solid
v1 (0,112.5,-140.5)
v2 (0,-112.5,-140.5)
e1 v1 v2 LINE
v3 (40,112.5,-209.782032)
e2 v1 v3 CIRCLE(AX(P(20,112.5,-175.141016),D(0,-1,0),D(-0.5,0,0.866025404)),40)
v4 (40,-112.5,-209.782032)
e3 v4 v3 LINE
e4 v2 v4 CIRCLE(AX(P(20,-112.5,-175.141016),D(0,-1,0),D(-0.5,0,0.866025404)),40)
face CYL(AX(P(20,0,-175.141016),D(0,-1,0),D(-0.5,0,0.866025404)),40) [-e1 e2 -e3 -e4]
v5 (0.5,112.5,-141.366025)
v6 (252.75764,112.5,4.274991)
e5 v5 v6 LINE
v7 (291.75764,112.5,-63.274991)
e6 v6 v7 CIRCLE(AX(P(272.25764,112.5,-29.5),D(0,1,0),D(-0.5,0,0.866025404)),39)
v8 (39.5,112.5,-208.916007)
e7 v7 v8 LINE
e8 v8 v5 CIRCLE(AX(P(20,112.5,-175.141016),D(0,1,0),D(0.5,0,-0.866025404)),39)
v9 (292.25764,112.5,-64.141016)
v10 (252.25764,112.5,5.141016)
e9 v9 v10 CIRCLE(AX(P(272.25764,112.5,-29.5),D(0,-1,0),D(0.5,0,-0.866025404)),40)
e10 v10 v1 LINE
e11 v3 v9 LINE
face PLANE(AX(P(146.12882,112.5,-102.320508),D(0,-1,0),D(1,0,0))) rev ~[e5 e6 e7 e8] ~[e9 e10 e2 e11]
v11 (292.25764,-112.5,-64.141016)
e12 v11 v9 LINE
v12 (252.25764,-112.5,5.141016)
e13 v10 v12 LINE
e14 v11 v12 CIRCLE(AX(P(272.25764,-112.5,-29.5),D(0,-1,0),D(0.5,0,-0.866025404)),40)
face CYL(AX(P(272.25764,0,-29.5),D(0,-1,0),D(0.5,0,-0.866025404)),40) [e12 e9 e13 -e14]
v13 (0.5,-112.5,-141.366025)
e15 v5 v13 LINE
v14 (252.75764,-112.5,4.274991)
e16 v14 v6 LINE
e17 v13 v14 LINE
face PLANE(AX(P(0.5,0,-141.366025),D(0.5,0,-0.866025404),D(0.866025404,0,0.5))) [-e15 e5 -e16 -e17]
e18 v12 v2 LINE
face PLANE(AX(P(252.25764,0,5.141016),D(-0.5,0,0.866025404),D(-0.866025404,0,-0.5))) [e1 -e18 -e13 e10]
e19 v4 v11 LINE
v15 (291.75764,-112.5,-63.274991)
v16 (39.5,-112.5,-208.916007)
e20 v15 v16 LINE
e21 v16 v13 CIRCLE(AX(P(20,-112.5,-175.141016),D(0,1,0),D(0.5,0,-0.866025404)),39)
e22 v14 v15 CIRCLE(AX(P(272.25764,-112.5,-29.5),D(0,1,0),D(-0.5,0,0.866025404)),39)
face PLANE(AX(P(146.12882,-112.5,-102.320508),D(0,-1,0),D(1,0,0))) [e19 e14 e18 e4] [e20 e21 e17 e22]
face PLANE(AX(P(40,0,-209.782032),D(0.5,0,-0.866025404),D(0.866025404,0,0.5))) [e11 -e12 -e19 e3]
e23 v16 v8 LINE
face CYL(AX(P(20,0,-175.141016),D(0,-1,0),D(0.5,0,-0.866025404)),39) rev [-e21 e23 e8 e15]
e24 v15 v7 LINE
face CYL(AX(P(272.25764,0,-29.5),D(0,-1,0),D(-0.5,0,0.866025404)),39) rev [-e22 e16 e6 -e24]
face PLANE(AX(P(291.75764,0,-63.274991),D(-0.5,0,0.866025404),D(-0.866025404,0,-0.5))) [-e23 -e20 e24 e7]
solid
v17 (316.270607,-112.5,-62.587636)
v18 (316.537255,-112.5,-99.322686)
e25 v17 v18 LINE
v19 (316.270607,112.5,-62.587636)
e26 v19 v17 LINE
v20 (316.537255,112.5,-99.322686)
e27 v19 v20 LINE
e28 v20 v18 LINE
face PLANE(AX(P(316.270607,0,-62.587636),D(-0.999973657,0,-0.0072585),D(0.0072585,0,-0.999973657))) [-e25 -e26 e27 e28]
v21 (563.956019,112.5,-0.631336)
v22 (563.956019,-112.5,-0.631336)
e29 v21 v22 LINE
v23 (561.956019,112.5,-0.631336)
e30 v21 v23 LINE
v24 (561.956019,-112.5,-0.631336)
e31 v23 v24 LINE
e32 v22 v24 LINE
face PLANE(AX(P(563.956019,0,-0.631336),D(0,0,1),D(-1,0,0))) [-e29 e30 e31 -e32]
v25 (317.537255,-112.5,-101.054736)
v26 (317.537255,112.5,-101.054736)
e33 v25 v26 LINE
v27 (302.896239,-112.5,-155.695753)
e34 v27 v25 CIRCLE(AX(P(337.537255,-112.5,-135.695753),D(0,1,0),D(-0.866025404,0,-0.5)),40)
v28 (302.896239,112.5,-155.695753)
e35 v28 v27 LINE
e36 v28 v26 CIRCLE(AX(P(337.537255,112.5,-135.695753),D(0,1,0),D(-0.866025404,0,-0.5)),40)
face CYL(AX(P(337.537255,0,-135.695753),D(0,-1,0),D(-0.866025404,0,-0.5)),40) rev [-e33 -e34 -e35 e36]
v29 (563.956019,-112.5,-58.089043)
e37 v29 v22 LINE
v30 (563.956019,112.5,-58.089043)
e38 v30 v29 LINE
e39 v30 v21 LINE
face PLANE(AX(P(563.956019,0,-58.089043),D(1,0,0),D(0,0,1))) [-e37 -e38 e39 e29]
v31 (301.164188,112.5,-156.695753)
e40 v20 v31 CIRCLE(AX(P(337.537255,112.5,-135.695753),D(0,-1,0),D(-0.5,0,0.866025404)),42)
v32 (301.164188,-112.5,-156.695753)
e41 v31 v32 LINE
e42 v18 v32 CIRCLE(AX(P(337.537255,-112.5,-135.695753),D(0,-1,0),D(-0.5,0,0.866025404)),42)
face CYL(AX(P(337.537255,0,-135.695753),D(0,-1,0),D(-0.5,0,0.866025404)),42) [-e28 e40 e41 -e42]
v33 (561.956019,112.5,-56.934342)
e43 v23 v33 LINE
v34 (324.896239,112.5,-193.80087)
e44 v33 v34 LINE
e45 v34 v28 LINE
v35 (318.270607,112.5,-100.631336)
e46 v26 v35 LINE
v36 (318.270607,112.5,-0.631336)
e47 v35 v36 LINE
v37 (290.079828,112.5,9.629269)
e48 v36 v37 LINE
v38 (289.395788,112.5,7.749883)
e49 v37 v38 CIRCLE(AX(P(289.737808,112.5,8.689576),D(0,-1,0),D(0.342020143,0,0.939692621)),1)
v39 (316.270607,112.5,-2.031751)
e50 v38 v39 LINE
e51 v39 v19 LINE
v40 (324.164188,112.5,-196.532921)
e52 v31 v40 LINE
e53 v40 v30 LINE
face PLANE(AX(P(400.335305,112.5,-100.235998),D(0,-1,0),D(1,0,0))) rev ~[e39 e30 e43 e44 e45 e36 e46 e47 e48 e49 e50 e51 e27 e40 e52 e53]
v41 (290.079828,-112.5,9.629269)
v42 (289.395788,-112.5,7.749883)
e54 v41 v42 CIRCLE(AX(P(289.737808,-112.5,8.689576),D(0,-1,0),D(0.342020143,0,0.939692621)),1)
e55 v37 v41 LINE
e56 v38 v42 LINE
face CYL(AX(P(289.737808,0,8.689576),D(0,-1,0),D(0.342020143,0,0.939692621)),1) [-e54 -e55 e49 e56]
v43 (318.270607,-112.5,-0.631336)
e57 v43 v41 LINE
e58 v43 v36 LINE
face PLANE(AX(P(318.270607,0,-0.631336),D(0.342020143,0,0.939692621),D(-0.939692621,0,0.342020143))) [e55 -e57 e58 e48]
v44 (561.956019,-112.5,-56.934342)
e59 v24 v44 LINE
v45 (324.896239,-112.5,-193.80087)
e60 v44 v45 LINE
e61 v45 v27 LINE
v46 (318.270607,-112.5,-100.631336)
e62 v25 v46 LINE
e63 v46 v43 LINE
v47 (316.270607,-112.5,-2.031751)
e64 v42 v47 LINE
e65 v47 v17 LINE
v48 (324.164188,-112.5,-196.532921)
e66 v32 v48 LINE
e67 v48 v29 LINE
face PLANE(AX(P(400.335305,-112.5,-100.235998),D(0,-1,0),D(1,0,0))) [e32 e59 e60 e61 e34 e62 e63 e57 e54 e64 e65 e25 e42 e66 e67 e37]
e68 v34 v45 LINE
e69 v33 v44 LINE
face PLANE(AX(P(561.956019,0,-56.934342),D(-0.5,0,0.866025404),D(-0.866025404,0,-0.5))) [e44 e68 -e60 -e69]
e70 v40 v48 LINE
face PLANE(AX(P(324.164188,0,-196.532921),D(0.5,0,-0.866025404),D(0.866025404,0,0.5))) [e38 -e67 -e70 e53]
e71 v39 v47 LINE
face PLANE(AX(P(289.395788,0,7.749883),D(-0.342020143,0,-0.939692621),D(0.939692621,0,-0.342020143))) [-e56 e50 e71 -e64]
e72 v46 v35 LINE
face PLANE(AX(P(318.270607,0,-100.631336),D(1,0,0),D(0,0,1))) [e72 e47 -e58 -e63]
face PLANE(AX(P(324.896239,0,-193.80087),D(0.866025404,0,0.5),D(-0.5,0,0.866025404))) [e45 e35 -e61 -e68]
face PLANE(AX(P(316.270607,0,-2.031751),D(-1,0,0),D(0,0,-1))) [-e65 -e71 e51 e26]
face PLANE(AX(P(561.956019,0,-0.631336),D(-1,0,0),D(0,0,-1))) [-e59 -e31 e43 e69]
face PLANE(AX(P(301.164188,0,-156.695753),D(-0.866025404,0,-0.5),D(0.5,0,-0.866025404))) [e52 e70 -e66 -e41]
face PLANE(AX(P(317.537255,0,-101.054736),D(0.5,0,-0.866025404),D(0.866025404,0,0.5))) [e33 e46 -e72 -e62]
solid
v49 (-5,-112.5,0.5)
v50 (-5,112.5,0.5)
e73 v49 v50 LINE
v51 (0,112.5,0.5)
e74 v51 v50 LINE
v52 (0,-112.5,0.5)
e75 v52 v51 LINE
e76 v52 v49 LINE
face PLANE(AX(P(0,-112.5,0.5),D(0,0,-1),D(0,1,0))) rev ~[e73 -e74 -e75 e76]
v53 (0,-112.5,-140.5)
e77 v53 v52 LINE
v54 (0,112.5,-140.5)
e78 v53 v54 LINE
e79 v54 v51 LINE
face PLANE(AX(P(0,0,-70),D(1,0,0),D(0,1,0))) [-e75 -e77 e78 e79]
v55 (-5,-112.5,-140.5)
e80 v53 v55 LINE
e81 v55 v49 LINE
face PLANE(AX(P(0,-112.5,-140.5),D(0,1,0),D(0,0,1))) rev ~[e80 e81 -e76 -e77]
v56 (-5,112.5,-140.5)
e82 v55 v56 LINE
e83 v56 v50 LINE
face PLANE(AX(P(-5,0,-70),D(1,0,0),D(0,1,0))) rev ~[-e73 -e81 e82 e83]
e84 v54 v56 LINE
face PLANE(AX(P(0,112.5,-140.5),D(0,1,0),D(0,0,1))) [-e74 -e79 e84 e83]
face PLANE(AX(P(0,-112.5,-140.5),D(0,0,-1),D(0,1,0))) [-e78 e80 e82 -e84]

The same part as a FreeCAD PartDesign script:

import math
import FreeCAD as App
import Part
import Sketcher
Q = App.Units.Quantity

doc = App.newDocument("Part")
params = doc.addObject("Spreadsheet::Sheet", "Params")
for row, (alias, value) in enumerate([
    ("sketch1_width", "225 mm"),
    ("sketch1_height", "141 mm"),
    ("pad1_length", "5 mm"),
    ("sketch2_radius", "40 mm"),
    ("sketch2_radius2", "39 mm"),
    ("pad2_length", "225 mm"),
    ("sketch3_radius", "1 mm"),
    ("sketch3_radius2", "42 mm"),
    ("sketch3_radius3", "40 mm"),
    ("sketch3_width", "2 mm"),
    ("sketch3_height", "100 mm"),
    ("pad3_length", "225 mm"),
], start=1):
    params.set(f"A{row}", alias)
    params.set(f"B{row}", "=" + value)
    params.setAlias(f"B{row}", alias)

body = doc.addObject("PartDesign::Body", "Body")

sketch1 = doc.addObject("Sketcher::SketchObject", "Sketch")
body.addObject(sketch1)
sketch1.AttachmentSupport = (doc.YZ_Plane, [""])
sketch1.MapMode = "FlatFace"
sketch1.addGeometry(Part.LineSegment(App.Vector(-112, 0, 0), App.Vector(-112, -140, 0)), False)
sketch1.addGeometry(Part.LineSegment(App.Vector(-112, -140, 0), App.Vector(112, -140, 0)), False)
sketch1.addGeometry(Part.LineSegment(App.Vector(112, -140, 0), App.Vector(112, 0, 0)), False)
sketch1.addGeometry(Part.LineSegment(App.Vector(112, 0, 0), App.Vector(-112, 0, 0)), False)
sketch1.addConstraint(Sketcher.Constraint("Coincident", 0, 2, 1, 1))
sketch1.addConstraint(Sketcher.Constraint("Coincident", 1, 2, 2, 1))
sketch1.addConstraint(Sketcher.Constraint("Coincident", 2, 2, 3, 1))
sketch1.addConstraint(Sketcher.Constraint("Coincident", 3, 2, 0, 1))
sketch1.addConstraint(Sketcher.Constraint("Vertical", 0))
sketch1.addConstraint(Sketcher.Constraint("Horizontal", 1))
sketch1.addConstraint(Sketcher.Constraint("Vertical", 2))
sketch1.addConstraint(Sketcher.Constraint("Horizontal", 3))
sketch1.addConstraint(Sketcher.Constraint("DistanceX", 1, 1, 1, 2, 225.0))
sketch1.addConstraint(Sketcher.Constraint("DistanceY", 0, 2, 0, 1, 141.0))
sketch1.addConstraint(Sketcher.Constraint("DistanceX", 0, 2, -1, 1, 112.5))
sketch1.addConstraint(Sketcher.Constraint("DistanceY", 0, 2, -1, 1, 140.5))
sketch1.setExpression("Constraints[8]", "Params.sketch1_width")
sketch1.setExpression("Constraints[9]", "Params.sketch1_height")
pad1 = doc.addObject("PartDesign::Pad", "Pad")
body.addObject(pad1)
pad1.Profile = sketch1
pad1.setExpression("Length", "Params.pad1_length")
pad1.Reversed = True
body2 = doc.addObject("PartDesign::Body", "Body001")

sketch2 = doc.addObject("Sketcher::SketchObject", "Sketch001")
body2.addObject(sketch2)
sketch2.AttachmentSupport = (doc.getObject("XZ_Plane001"), [""])
sketch2.MapMode = "FlatFace"
sketch2.addGeometry(Part.ArcOfCircle(Part.Circle(App.Vector(272, -30, 0), App.Vector(0, 0, 1), 40), math.radians(-60), math.radians(120)), False)
sketch2.addGeometry(Part.LineSegment(App.Vector(252, 5, 0), App.Vector(0, -140, 0)), False)
sketch2.addGeometry(Part.ArcOfCircle(Part.Circle(App.Vector(20, -175, 0), App.Vector(0, 0, 1), 40), math.radians(120), math.radians(300)), False)
sketch2.addGeometry(Part.LineSegment(App.Vector(40, -210, 0), App.Vector(292, -64, 0)), False)
sketch2.addGeometry(Part.ArcOfCircle(Part.Circle(App.Vector(20, -175, 0), App.Vector(0, 0, 1), 39), math.radians(120), math.radians(300)), False)
sketch2.addGeometry(Part.LineSegment(App.Vector(0, -141, 0), App.Vector(253, 4, 0)), False)
sketch2.addGeometry(Part.ArcOfCircle(Part.Circle(App.Vector(272, -30, 0), App.Vector(0, 0, 1), 39), math.radians(-60), math.radians(120)), False)
sketch2.addGeometry(Part.LineSegment(App.Vector(292, -63, 0), App.Vector(40, -209, 0)), False)
sketch2.addConstraint(Sketcher.Constraint("Tangent", 0, 2, 1, 1))
sketch2.addConstraint(Sketcher.Constraint("Tangent", 1, 2, 2, 1))
sketch2.addConstraint(Sketcher.Constraint("Tangent", 2, 2, 3, 1))
sketch2.addConstraint(Sketcher.Constraint("Tangent", 3, 2, 0, 1))
sketch2.addConstraint(Sketcher.Constraint("Tangent", 4, 1, 5, 1))
sketch2.addConstraint(Sketcher.Constraint("Tangent", 5, 2, 6, 2))
sketch2.addConstraint(Sketcher.Constraint("Tangent", 6, 1, 7, 1))
sketch2.addConstraint(Sketcher.Constraint("Tangent", 7, 2, 4, 2))
sketch2.addConstraint(Sketcher.Constraint("Coincident", 4, 3, 2, 3))
sketch2.addConstraint(Sketcher.Constraint("Coincident", 6, 3, 0, 3))
sketch2.addConstraint(Sketcher.Constraint("Equal", 0, 2))
sketch2.addConstraint(Sketcher.Constraint("Equal", 4, 6))
sketch2.addConstraint(Sketcher.Constraint("PointOnObject", 1, 2, -2))
sketch2.addConstraint(Sketcher.Constraint("Radius", 0, 40.0))
sketch2.addConstraint(Sketcher.Constraint("Radius", 4, 39.0))
sketch2.addConstraint(Sketcher.Constraint("Angle", 1, Q("-150 deg")))
sketch2.addConstraint(Sketcher.Constraint("DistanceY", 1, 2, 0, 3, 111.0))
sketch2.addConstraint(Sketcher.Constraint("DistanceY", 0, 3, -1, 1, 29.5))
sketch2.setExpression("Constraints[13]", "Params.sketch2_radius")
sketch2.setExpression("Constraints[14]", "Params.sketch2_radius2")
pad2 = doc.addObject("PartDesign::Pad", "Pad001")
body2.addObject(pad2)
pad2.Profile = sketch2
pad2.setExpression("Length", "Params.pad2_length")
pad2.Midplane = True
body3 = doc.addObject("PartDesign::Body", "Body002")

sketch3 = doc.addObject("Sketcher::SketchObject", "Sketch002")
body3.addObject(sketch3)
sketch3.AttachmentSupport = (doc.getObject("XZ_Plane002"), [""])
sketch3.MapMode = "FlatFace"
sketch3.addGeometry(Part.LineSegment(App.Vector(318.3, -0.6, 0), App.Vector(290.1, 9.6, 0)), False)
sketch3.addGeometry(Part.ArcOfCircle(Part.Circle(App.Vector(289.7, 8.7, 0), App.Vector(0, 0, 1), 1), math.radians(70), math.radians(250)), False)
sketch3.addGeometry(Part.LineSegment(App.Vector(289.4, 7.7, 0), App.Vector(316.3, -2, 0)), False)
sketch3.addGeometry(Part.LineSegment(App.Vector(316.3, -2, 0), App.Vector(316.3, -62.6, 0)), False)
sketch3.addGeometry(Part.LineSegment(App.Vector(316.3, -62.6, 0), App.Vector(316.5, -99.3, 0)), False)
sketch3.addGeometry(Part.ArcOfCircle(Part.Circle(App.Vector(337.5, -135.7, 0), App.Vector(0, 0, 1), 42), math.radians(120), math.radians(210)), False)
sketch3.addGeometry(Part.LineSegment(App.Vector(301.2, -156.7, 0), App.Vector(324.2, -196.5, 0)), False)
sketch3.addGeometry(Part.LineSegment(App.Vector(324.2, -196.5, 0), App.Vector(564, -58.1, 0)), False)
sketch3.addGeometry(Part.LineSegment(App.Vector(564, -58.1, 0), App.Vector(564, -0.6, 0)), False)
sketch3.addGeometry(Part.LineSegment(App.Vector(564, -0.6, 0), App.Vector(562, -0.6, 0)), False)
sketch3.addGeometry(Part.LineSegment(App.Vector(562, -0.6, 0), App.Vector(562, -56.9, 0)), False)
sketch3.addGeometry(Part.LineSegment(App.Vector(562, -56.9, 0), App.Vector(324.9, -193.8, 0)), False)
sketch3.addGeometry(Part.LineSegment(App.Vector(324.9, -193.8, 0), App.Vector(302.9, -155.7, 0)), False)
sketch3.addGeometry(Part.ArcOfCircle(Part.Circle(App.Vector(337.5, -135.7, 0), App.Vector(0, 0, 1), 40), math.radians(120), math.radians(210)), False)
sketch3.addGeometry(Part.LineSegment(App.Vector(317.5, -101.1, 0), App.Vector(318.3, -100.6, 0)), False)
sketch3.addGeometry(Part.LineSegment(App.Vector(318.3, -100.6, 0), App.Vector(318.3, -0.6, 0)), False)
sketch3.addConstraint(Sketcher.Constraint("Tangent", 0, 2, 1, 1))
sketch3.addConstraint(Sketcher.Constraint("Tangent", 1, 2, 2, 1))
sketch3.addConstraint(Sketcher.Constraint("Coincident", 2, 2, 3, 1))
sketch3.addConstraint(Sketcher.Constraint("Coincident", 3, 2, 4, 1))
sketch3.addConstraint(Sketcher.Constraint("Coincident", 4, 2, 5, 1))
sketch3.addConstraint(Sketcher.Constraint("Tangent", 5, 2, 6, 1))
sketch3.addConstraint(Sketcher.Constraint("Coincident", 6, 2, 7, 1))
sketch3.addConstraint(Sketcher.Constraint("Coincident", 7, 2, 8, 1))
sketch3.addConstraint(Sketcher.Constraint("Coincident", 8, 2, 9, 1))
sketch3.addConstraint(Sketcher.Constraint("Coincident", 9, 2, 10, 1))
sketch3.addConstraint(Sketcher.Constraint("Coincident", 10, 2, 11, 1))
sketch3.addConstraint(Sketcher.Constraint("Coincident", 11, 2, 12, 1))
sketch3.addConstraint(Sketcher.Constraint("Tangent", 12, 2, 13, 2))
sketch3.addConstraint(Sketcher.Constraint("Tangent", 13, 1, 14, 1))
sketch3.addConstraint(Sketcher.Constraint("Coincident", 14, 2, 15, 1))
sketch3.addConstraint(Sketcher.Constraint("Coincident", 15, 2, 0, 1))
sketch3.addConstraint(Sketcher.Constraint("Vertical", 3))
sketch3.addConstraint(Sketcher.Constraint("Vertical", 8))
sketch3.addConstraint(Sketcher.Constraint("Horizontal", 9))
sketch3.addConstraint(Sketcher.Constraint("Vertical", 10))
sketch3.addConstraint(Sketcher.Constraint("Vertical", 15))
sketch3.addConstraint(Sketcher.Constraint("Coincident", 13, 3, 5, 3))
sketch3.addConstraint(Sketcher.Constraint("Parallel", 0, 2))
sketch3.addConstraint(Sketcher.Constraint("Perpendicular", 6, 7))
sketch3.addConstraint(Sketcher.Constraint("Parallel", 7, 11))
sketch3.addConstraint(Sketcher.Constraint("Perpendicular", 11, 12))
sketch3.addConstraint(Sketcher.Constraint("Perpendicular", 12, 14))
sketch3.addConstraint(Sketcher.Constraint("Horizontal", 9, 2, 15, 2))
sketch3.addConstraint(Sketcher.Constraint("Radius", 1, 1.0))
sketch3.addConstraint(Sketcher.Constraint("Radius", 5, 42.0))
sketch3.addConstraint(Sketcher.Constraint("Radius", 13, 40.0))
sketch3.addConstraint(Sketcher.Constraint("DistanceX", 9, 2, 9, 1, 2.0))
sketch3.addConstraint(Sketcher.Constraint("DistanceY", 15, 1, 15, 2, 100.0))
sketch3.addConstraint(Sketcher.Constraint("Angle", 0, Q("160 deg")))
sketch3.addConstraint(Sketcher.Constraint("Angle", 6, Q("-60 deg")))
sketch3.addConstraint(Sketcher.Constraint("Distance", 0, 30.0))
sketch3.addConstraint(Sketcher.Constraint("Distance", 6, 46.0))
sketch3.addConstraint(Sketcher.Constraint("Distance", 12, 44.0))
sketch3.addConstraint(Sketcher.Constraint("DistanceX", 4, 2, 5, 3, 21.0))
sketch3.addConstraint(Sketcher.Constraint("DistanceX", 3, 2, 14, 2, 2.0))
sketch3.addConstraint(Sketcher.Constraint("DistanceY", 5, 3, 2, 2, 133.664002))
sketch3.addConstraint(Sketcher.Constraint("DistanceY", 3, 2, 8, 2, 61.9563))
sketch3.addConstraint(Sketcher.Constraint("DistanceY", 8, 1, 8, 2, 57.457707))
sketch3.addConstraint(Sketcher.Constraint("DistanceX", -1, 1, 1, 3, 289.737808))
sketch3.addConstraint(Sketcher.Constraint("DistanceY", -1, 1, 0, 2, 9.629269))
sketch3.setExpression("Constraints[28]", "Params.sketch3_radius")
sketch3.setExpression("Constraints[29]", "Params.sketch3_radius2")
sketch3.setExpression("Constraints[30]", "Params.sketch3_radius3")
sketch3.setExpression("Constraints[31]", "Params.sketch3_width")
sketch3.setExpression("Constraints[32]", "Params.sketch3_height")
pad3 = doc.addObject("PartDesign::Pad", "Pad002")
body3.addObject(pad3)
pad3.Profile = sketch3
pad3.setExpression("Length", "Params.pad3_length")
pad3.Midplane = True

doc.recompute()
